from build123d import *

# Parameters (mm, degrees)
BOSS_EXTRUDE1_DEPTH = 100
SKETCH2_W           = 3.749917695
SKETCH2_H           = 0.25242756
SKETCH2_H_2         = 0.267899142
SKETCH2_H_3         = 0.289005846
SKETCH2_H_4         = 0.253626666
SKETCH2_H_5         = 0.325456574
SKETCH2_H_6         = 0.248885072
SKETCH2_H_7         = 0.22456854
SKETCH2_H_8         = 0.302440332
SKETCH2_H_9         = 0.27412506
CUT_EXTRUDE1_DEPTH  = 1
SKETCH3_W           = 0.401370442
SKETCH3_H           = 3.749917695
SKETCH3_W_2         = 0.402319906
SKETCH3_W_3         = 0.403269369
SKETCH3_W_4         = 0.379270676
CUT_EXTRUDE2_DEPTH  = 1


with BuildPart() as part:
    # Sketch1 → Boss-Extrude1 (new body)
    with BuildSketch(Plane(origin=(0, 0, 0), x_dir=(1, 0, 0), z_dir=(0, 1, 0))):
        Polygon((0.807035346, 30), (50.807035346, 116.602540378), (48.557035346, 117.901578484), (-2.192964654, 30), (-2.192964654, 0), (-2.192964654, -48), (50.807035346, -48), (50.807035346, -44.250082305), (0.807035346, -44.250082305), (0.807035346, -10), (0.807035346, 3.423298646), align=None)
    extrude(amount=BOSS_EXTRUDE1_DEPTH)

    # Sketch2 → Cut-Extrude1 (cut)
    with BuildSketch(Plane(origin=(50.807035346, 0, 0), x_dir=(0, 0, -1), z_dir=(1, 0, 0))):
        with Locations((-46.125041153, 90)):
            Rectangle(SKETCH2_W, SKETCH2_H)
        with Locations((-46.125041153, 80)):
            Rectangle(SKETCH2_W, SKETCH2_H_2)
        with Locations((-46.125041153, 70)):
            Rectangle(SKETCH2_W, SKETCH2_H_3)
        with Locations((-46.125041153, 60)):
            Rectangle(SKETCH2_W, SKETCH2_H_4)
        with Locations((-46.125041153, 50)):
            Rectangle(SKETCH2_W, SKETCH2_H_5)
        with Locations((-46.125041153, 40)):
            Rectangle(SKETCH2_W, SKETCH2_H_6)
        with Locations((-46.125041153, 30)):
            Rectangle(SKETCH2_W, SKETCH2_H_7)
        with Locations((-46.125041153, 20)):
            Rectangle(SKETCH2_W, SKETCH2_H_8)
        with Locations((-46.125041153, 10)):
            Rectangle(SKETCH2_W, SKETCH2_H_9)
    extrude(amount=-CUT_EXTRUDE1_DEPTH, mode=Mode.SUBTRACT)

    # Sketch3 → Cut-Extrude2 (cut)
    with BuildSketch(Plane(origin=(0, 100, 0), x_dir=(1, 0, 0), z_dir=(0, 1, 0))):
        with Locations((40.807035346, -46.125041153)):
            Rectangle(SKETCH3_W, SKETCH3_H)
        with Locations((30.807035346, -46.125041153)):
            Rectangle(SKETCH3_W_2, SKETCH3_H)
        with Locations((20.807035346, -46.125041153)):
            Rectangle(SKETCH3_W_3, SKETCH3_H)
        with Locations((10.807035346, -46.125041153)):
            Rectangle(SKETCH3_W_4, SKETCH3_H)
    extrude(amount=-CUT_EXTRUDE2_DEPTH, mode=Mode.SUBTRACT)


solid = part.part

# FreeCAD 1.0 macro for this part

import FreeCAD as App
import Part
import Sketcher
Q = App.Units.Quantity

doc = App.newDocument("Part")
body = doc.addObject("PartDesign::Body", "Body")

sketch1 = doc.addObject("Sketcher::SketchObject", "Sketch")
body.addObject(sketch1)
sketch1.AttachmentSupport = (doc.XZ_Plane, [""])
sketch1.MapMode = "FlatFace"
sketch1.addGeometry(Part.LineSegment(App.Vector(0.8, -30, 0), App.Vector(50.8, -116.6, 0)), False)
sketch1.addGeometry(Part.LineSegment(App.Vector(50.8, -116.6, 0), App.Vector(48.6, -117.9, 0)), False)
sketch1.addGeometry(Part.LineSegment(App.Vector(48.6, -117.9, 0), App.Vector(-2.2, -30, 0)), False)
sketch1.addGeometry(Part.LineSegment(App.Vector(-2.2, -30, 0), App.Vector(-2.2, 48, 0)), False)
sketch1.addGeometry(Part.LineSegment(App.Vector(-2.2, 48, 0), App.Vector(50.8, 48, 0)), False)
sketch1.addGeometry(Part.LineSegment(App.Vector(50.8, 48, 0), App.Vector(50.8, 44.3, 0)), False)
sketch1.addGeometry(Part.LineSegment(App.Vector(50.8, 44.3, 0), App.Vector(0.8, 44.3, 0)), False)
sketch1.addGeometry(Part.LineSegment(App.Vector(0.8, 44.3, 0), App.Vector(0.8, -30, 0)), False)
sketch1.addConstraint(Sketcher.Constraint("Coincident", 0, 2, 1, 1))
sketch1.addConstraint(Sketcher.Constraint("Coincident", 1, 2, 2, 1))
sketch1.addConstraint(Sketcher.Constraint("Coincident", 2, 2, 3, 1))
sketch1.addConstraint(Sketcher.Constraint("Coincident", 3, 2, 4, 1))
sketch1.addConstraint(Sketcher.Constraint("Coincident", 4, 2, 5, 1))
sketch1.addConstraint(Sketcher.Constraint("Coincident", 5, 2, 6, 1))
sketch1.addConstraint(Sketcher.Constraint("Coincident", 6, 2, 7, 1))
sketch1.addConstraint(Sketcher.Constraint("Coincident", 7, 2, 0, 1))
sketch1.addConstraint(Sketcher.Constraint("Vertical", 3))
sketch1.addConstraint(Sketcher.Constraint("Horizontal", 4))
sketch1.addConstraint(Sketcher.Constraint("Vertical", 5))
sketch1.addConstraint(Sketcher.Constraint("Horizontal", 6))
sketch1.addConstraint(Sketcher.Constraint("Vertical", 7))
sketch1.addConstraint(Sketcher.Constraint("Perpendicular", 0, 1))
sketch1.addConstraint(Sketcher.Constraint("Perpendicular", 1, 2))
sketch1.addConstraint(Sketcher.Constraint("Horizontal", 2, 2, 7, 2))
sketch1.addConstraint(Sketcher.Constraint("Vertical", 0, 2, 4, 2))
sketch1.addConstraint(Sketcher.Constraint("DistanceX", 4, 1, 4, 2, Q("53 mm")))
sketch1.addConstraint(Sketcher.Constraint("DistanceX", 6, 2, 6, 1, Q("50 mm")))
sketch1.addConstraint(Sketcher.Constraint("DistanceY", 3, 1, 3, 2, Q("78 mm")))
sketch1.addConstraint(Sketcher.Constraint("Angle", 0, Q("-60 deg")))
sketch1.addConstraint(Sketcher.Constraint("DistanceY", 2, 2, -1, 1, Q("30 mm")))
sketch1.addConstraint(Sketcher.Constraint("DistanceY", 5, 2, 5, 1, Q("3.749918 mm")))
sketch1.addConstraint(Sketcher.Constraint("DistanceX", -1, 1, 0, 2, Q("50.807035 mm")))
pad1 = doc.addObject("PartDesign::Pad", "Pad")
body.addObject(pad1)
pad1.Profile = sketch1
pad1.Length = 100
pad1.Reversed = True

sketch2 = doc.addObject("Sketcher::SketchObject", "Sketch001")
body.addObject(sketch2)
sketch2.AttachmentSupport = (doc.YZ_Plane, [""])
sketch2.MapMode = "FlatFace"
sketch2.AttachmentOffset = App.Placement(App.Vector(0, 0, 50.807035), App.Rotation())
sketch2.addGeometry(Part.LineSegment(App.Vector(90.13, 48, 0), App.Vector(89.87, 48, 0)), False)
sketch2.addGeometry(Part.LineSegment(App.Vector(89.87, 48, 0), App.Vector(89.87, 44.25, 0)), False)
sketch2.addGeometry(Part.LineSegment(App.Vector(89.87, 44.25, 0), App.Vector(90.13, 44.25, 0)), False)
sketch2.addGeometry(Part.LineSegment(App.Vector(90.13, 44.25, 0), App.Vector(90.13, 48, 0)), False)
sketch2.addGeometry(Part.LineSegment(App.Vector(80.13, 48, 0), App.Vector(79.87, 48, 0)), False)
sketch2.addGeometry(Part.LineSegment(App.Vector(79.87, 48, 0), App.Vector(79.87, 44.25, 0)), False)
sketch2.addGeometry(Part.LineSegment(App.Vector(79.87, 44.25, 0), App.Vector(80.13, 44.25, 0)), False)
sketch2.addGeometry(Part.LineSegment(App.Vector(80.13, 44.25, 0), App.Vector(80.13, 48, 0)), False)
sketch2.addGeometry(Part.LineSegment(App.Vector(70.14, 48, 0), App.Vector(69.86, 48, 0)), False)
sketch2.addGeometry(Part.LineSegment(App.Vector(69.86, 48, 0), App.Vector(69.86, 44.25, 0)), False)
sketch2.addGeometry(Part.LineSegment(App.Vector(69.86, 44.25, 0), App.Vector(70.14, 44.25, 0)), False)
sketch2.addGeometry(Part.LineSegment(App.Vector(70.14, 44.25, 0), App.Vector(70.14, 48, 0)), False)
sketch2.addGeometry(Part.LineSegment(App.Vector(60.13, 48, 0), App.Vector(59.87, 48, 0)), False)
sketch2.addGeometry(Part.LineSegment(App.Vector(59.87, 48, 0), App.Vector(59.87, 44.25, 0)), False)
sketch2.addGeometry(Part.LineSegment(App.Vector(59.87, 44.25, 0), App.Vector(60.13, 44.25, 0)), False)
sketch2.addGeometry(Part.LineSegment(App.Vector(60.13, 44.25, 0), App.Vector(60.13, 48, 0)), False)
sketch2.addGeometry(Part.LineSegment(App.Vector(50.16, 48, 0), App.Vector(49.84, 48, 0)), False)
sketch2.addGeometry(Part.LineSegment(App.Vector(49.84, 48, 0), App.Vector(49.84, 44.25, 0)), False)
sketch2.addGeometry(Part.LineSegment(App.Vector(49.84, 44.25, 0), App.Vector(50.16, 44.25, 0)), False)
sketch2.addGeometry(Part.LineSegment(App.Vector(50.16, 44.25, 0), App.Vector(50.16, 48, 0)), False)
sketch2.addGeometry(Part.LineSegment(App.Vector(40.12, 48, 0), App.Vector(39.88, 48, 0)), False)
sketch2.addGeometry(Part.LineSegment(App.Vector(39.88, 48, 0), App.Vector(39.88, 44.25, 0)), False)
sketch2.addGeometry(Part.LineSegment(App.Vector(39.88, 44.25, 0), App.Vector(40.12, 44.25, 0)), False)
sketch2.addGeometry(Part.LineSegment(App.Vector(40.12, 44.25, 0), App.Vector(40.12, 48, 0)), False)
sketch2.addGeometry(Part.LineSegment(App.Vector(30.11, 48, 0), App.Vector(29.89, 48, 0)), False)
sketch2.addGeometry(Part.LineSegment(App.Vector(29.89, 48, 0), App.Vector(29.89, 44.25, 0)), False)
sketch2.addGeometry(Part.LineSegment(App.Vector(29.89, 44.25, 0), App.Vector(30.11, 44.25, 0)), False)
sketch2.addGeometry(Part.LineSegment(App.Vector(30.11, 44.25, 0), App.Vector(30.11, 48, 0)), False)
sketch2.addGeometry(Part.LineSegment(App.Vector(20.15, 48, 0), App.Vector(19.85, 48, 0)), False)
sketch2.addGeometry(Part.LineSegment(App.Vector(19.85, 48, 0), App.Vector(19.85, 44.25, 0)), False)
sketch2.addGeometry(Part.LineSegment(App.Vector(19.85, 44.25, 0), App.Vector(20.15, 44.25, 0)), False)
sketch2.addGeometry(Part.LineSegment(App.Vector(20.15, 44.25, 0), App.Vector(20.15, 48, 0)), False)
sketch2.addGeometry(Part.LineSegment(App.Vector(10.14, 48, 0), App.Vector(9.86, 48, 0)), False)
sketch2.addGeometry(Part.LineSegment(App.Vector(9.86, 48, 0), App.Vector(9.86, 44.25, 0)), False)
sketch2.addGeometry(Part.LineSegment(App.Vector(9.86, 44.25, 0), App.Vector(10.14, 44.25, 0)), False)
sketch2.addGeometry(Part.LineSegment(App.Vector(10.14, 44.25, 0), App.Vector(10.14, 48, 0)), False)
sketch2.addConstraint(Sketcher.Constraint("Coincident", 0, 2, 1, 1))
sketch2.addConstraint(Sketcher.Constraint("Coincident", 1, 2, 2, 1))
sketch2.addConstraint(Sketcher.Constraint("Coincident", 2, 2, 3, 1))
sketch2.addConstraint(Sketcher.Constraint("Coincident", 3, 2, 0, 1))
sketch2.addConstraint(Sketcher.Constraint("Coincident", 4, 2, 5, 1))
sketch2.addConstraint(Sketcher.Constraint("Coincident", 5, 2, 6, 1))
sketch2.addConstraint(Sketcher.Constraint("Coincident", 6, 2, 7, 1))
sketch2.addConstraint(Sketcher.Constraint("Coincident", 7, 2, 4, 1))
sketch2.addConstraint(Sketcher.Constraint("Coincident", 8, 2, 9, 1))
sketch2.addConstraint(Sketcher.Constraint("Coincident", 9, 2, 10, 1))
sketch2.addConstraint(Sketcher.Constraint("Coincident", 10, 2, 11, 1))
sketch2.addConstraint(Sketcher.Constraint("Coincident", 11, 2, 8, 1))
sketch2.addConstraint(Sketcher.Constraint("Coincident", 12, 2, 13, 1))
sketch2.addConstraint(Sketcher.Constraint("Coincident", 13, 2, 14, 1))
sketch2.addConstraint(Sketcher.Constraint("Coincident", 14, 2, 15, 1))
sketch2.addConstraint(Sketcher.Constraint("Coincident", 15, 2, 12, 1))
sketch2.addConstraint(Sketcher.Constraint("Coincident", 16, 2, 17, 1))
sketch2.addConstraint(Sketcher.Constraint("Coincident", 17, 2, 18, 1))
sketch2.addConstraint(Sketcher.Constraint("Coincident", 18, 2, 19, 1))
sketch2.addConstraint(Sketcher.Constraint("Coincident", 19, 2, 16, 1))
sketch2.addConstraint(Sketcher.Constraint("Coincident", 20, 2, 21, 1))
sketch2.addConstraint(Sketcher.Constraint("Coincident", 21, 2, 22, 1))
sketch2.addConstraint(Sketcher.Constraint("Coincident", 22, 2, 23, 1))
sketch2.addConstraint(Sketcher.Constraint("Coincident", 23, 2, 20, 1))
sketch2.addConstraint(Sketcher.Constraint("Coincident", 24, 2, 25, 1))
sketch2.addConstraint(Sketcher.Constraint("Coincident", 25, 2, 26, 1))
sketch2.addConstraint(Sketcher.Constraint("Coincident", 26, 2, 27, 1))
sketch2.addConstraint(Sketcher.Constraint("Coincident", 27, 2, 24, 1))
sketch2.addConstraint(Sketcher.Constraint("Coincident", 28, 2, 29, 1))
sketch2.addConstraint(Sketcher.Constraint("Coincident", 29, 2, 30, 1))
sketch2.addConstraint(Sketcher.Constraint("Coincident", 30, 2, 31, 1))
sketch2.addConstraint(Sketcher.Constraint("Coincident", 31, 2, 28, 1))
sketch2.addConstraint(Sketcher.Constraint("Coincident", 32, 2, 33, 1))
sketch2.addConstraint(Sketcher.Constraint("Coincident", 33, 2, 34, 1))
sketch2.addConstraint(Sketcher.Constraint("Coincident", 34, 2, 35, 1))
sketch2.addConstraint(Sketcher.Constraint("Coincident", 35, 2, 32, 1))
sketch2.addConstraint(Sketcher.Constraint("Horizontal", 0))
sketch2.addConstraint(Sketcher.Constraint("Vertical", 1))
sketch2.addConstraint(Sketcher.Constraint("Horizontal", 2))
sketch2.addConstraint(Sketcher.Constraint("Vertical", 3))
sketch2.addConstraint(Sketcher.Constraint("Horizontal", 4))
sketch2.addConstraint(Sketcher.Constraint("Vertical", 5))
sketch2.addConstraint(Sketcher.Constraint("Horizontal", 6))
sketch2.addConstraint(Sketcher.Constraint("Vertical", 7))
sketch2.addConstraint(Sketcher.Constraint("Horizontal", 8))
sketch2.addConstraint(Sketcher.Constraint("Vertical", 9))
sketch2.addConstraint(Sketcher.Constraint("Horizontal", 10))
sketch2.addConstraint(Sketcher.Constraint("Vertical", 11))
sketch2.addConstraint(Sketcher.Constraint("Horizontal", 12))
sketch2.addConstraint(Sketcher.Constraint("Vertical", 13))
sketch2.addConstraint(Sketcher.Constraint("Horizontal", 14))
sketch2.addConstraint(Sketcher.Constraint("Vertical", 15))
sketch2.addConstraint(Sketcher.Constraint("Horizontal", 16))
sketch2.addConstraint(Sketcher.Constraint("Vertical", 17))
sketch2.addConstraint(Sketcher.Constraint("Horizontal", 18))
sketch2.addConstraint(Sketcher.Constraint("Vertical", 19))
sketch2.addConstraint(Sketcher.Constraint("Horizontal", 20))
sketch2.addConstraint(Sketcher.Constraint("Vertical", 21))
sketch2.addConstraint(Sketcher.Constraint("Horizontal", 22))
sketch2.addConstraint(Sketcher.Constraint("Vertical", 23))
sketch2.addConstraint(Sketcher.Constraint("Horizontal", 24))
sketch2.addConstraint(Sketcher.Constraint("Vertical", 25))
sketch2.addConstraint(Sketcher.Constraint("Horizontal", 26))
sketch2.addConstraint(Sketcher.Constraint("Vertical", 27))
sketch2.addConstraint(Sketcher.Constraint("Horizontal", 28))
sketch2.addConstraint(Sketcher.Constraint("Vertical", 29))
sketch2.addConstraint(Sketcher.Constraint("Horizontal", 30))
sketch2.addConstraint(Sketcher.Constraint("Vertical", 31))
sketch2.addConstraint(Sketcher.Constraint("Horizontal", 32))
sketch2.addConstraint(Sketcher.Constraint("Vertical", 33))
sketch2.addConstraint(Sketcher.Constraint("Horizontal", 34))
sketch2.addConstraint(Sketcher.Constraint("Vertical", 35))
sketch2.addConstraint(Sketcher.Constraint("Horizontal", 3, 2, 4, 2))
sketch2.addConstraint(Sketcher.Constraint("Horizontal", 2, 2, 5, 2))
sketch2.addConstraint(Sketcher.Constraint("Horizontal", 7, 2, 8, 2))
sketch2.addConstraint(Sketcher.Constraint("Horizontal", 6, 2, 9, 2))
sketch2.addConstraint(Sketcher.Constraint("Horizontal", 11, 2, 12, 2))
sketch2.addConstraint(Sketcher.Constraint("Horizontal", 10, 2, 13, 2))
sketch2.addConstraint(Sketcher.Constraint("Horizontal", 15, 2, 16, 2))
sketch2.addConstraint(Sketcher.Constraint("Horizontal", 14, 2, 17, 2))
sketch2.addConstraint(Sketcher.Constraint("Horizontal", 19, 2, 20, 2))
sketch2.addConstraint(Sketcher.Constraint("Horizontal", 18, 2, 21, 2))
sketch2.addConstraint(Sketcher.Constraint("Horizontal", 23, 2, 24, 2))
sketch2.addConstraint(Sketcher.Constraint("Horizontal", 22, 2, 25, 2))
sketch2.addConstraint(Sketcher.Constraint("Horizontal", 27, 2, 28, 2))
sketch2.addConstraint(Sketcher.Constraint("Horizontal", 26, 2, 29, 2))
sketch2.addConstraint(Sketcher.Constraint("Horizontal", 31, 2, 32, 2))
sketch2.addConstraint(Sketcher.Constraint("Horizontal", 30, 2, 33, 2))
sketch2.addConstraint(Sketcher.Constraint("DistanceY", -1, 1, 0, 2, Q("48 mm")))
sketch2.addConstraint(Sketcher.Constraint("DistanceX", 4, 2, 4, 1, Q("0.267899 mm")))
sketch2.addConstraint(Sketcher.Constraint("DistanceX", 24, 2, 24, 1, Q("0.224569 mm")))
sketch2.addConstraint(Sketcher.Constraint("DistanceX", 28, 2, 28, 1, Q("0.30244 mm")))
sketch2.addConstraint(Sketcher.Constraint("DistanceX", 0, 2, 0, 1, Q("0.252428 mm")))
sketch2.addConstraint(Sketcher.Constraint("DistanceX", 8, 2, 8, 1, Q("0.289006 mm")))
sketch2.addConstraint(Sketcher.Constraint("DistanceX", 12, 2, 12, 1, Q("0.253627 mm")))
sketch2.addConstraint(Sketcher.Constraint("DistanceX", 16, 2, 16, 1, Q("0.325457 mm")))
sketch2.addConstraint(Sketcher.Constraint("DistanceX", 20, 2, 20, 1, Q("0.248885 mm")))
sketch2.addConstraint(Sketcher.Constraint("DistanceX", 32, 2, 32, 1, Q("0.274125 mm")))
sketch2.addConstraint(Sketcher.Constraint("DistanceY", 1, 2, 1, 1, Q("3.749918 mm")))
sketch2.addConstraint(Sketcher.Constraint("DistanceX", -1, 1, 4, 2, Q("79.86605 mm")))
sketch2.addConstraint(Sketcher.Constraint("DistanceX", -1, 1, 16, 2, Q("49.837272 mm")))
sketch2.addConstraint(Sketcher.Constraint("DistanceX", -1, 1, 28, 2, Q("19.84878 mm")))
sketch2.addConstraint(Sketcher.Constraint("DistanceX", 8, 2, 0, 2, Q("20.018289 mm")))
sketch2.addConstraint(Sketcher.Constraint("DistanceX", 12, 2, 8, 2, Q("9.98231 mm")))
sketch2.addConstraint(Sketcher.Constraint("DistanceX", 16, 2, 15, 2, Q("10.289542 mm")))
sketch2.addConstraint(Sketcher.Constraint("DistanceX", 20, 2, 19, 2, Q("10.287171 mm")))
sketch2.addConstraint(Sketcher.Constraint("DistanceX", 24, 2, 20, 2, Q("9.987842 mm")))
sketch2.addConstraint(Sketcher.Constraint("DistanceX", 32, 2, 24, 2, Q("20.024778 mm")))
pocket1 = doc.addObject("PartDesign::Pocket", "Pocket")
body.addObject(pocket1)
pocket1.Profile = sketch2
pocket1.Length = 1

sketch3 = doc.addObject("Sketcher::SketchObject", "Sketch002")
body.addObject(sketch3)
sketch3.AttachmentSupport = (doc.XZ_Plane, [""])
sketch3.MapMode = "FlatFace"
sketch3.AttachmentOffset = App.Placement(App.Vector(0, 0, -100), App.Rotation())
sketch3.addGeometry(Part.LineSegment(App.Vector(40.61, 44.25, 0), App.Vector(40.61, 48, 0)), False)
sketch3.addGeometry(Part.LineSegment(App.Vector(40.61, 48, 0), App.Vector(41.01, 48, 0)), False)
sketch3.addGeometry(Part.LineSegment(App.Vector(41.01, 48, 0), App.Vector(41.01, 44.25, 0)), False)
sketch3.addGeometry(Part.LineSegment(App.Vector(41.01, 44.25, 0), App.Vector(40.61, 44.25, 0)), False)
sketch3.addGeometry(Part.LineSegment(App.Vector(30.61, 44.25, 0), App.Vector(30.61, 48, 0)), False)
sketch3.addGeometry(Part.LineSegment(App.Vector(30.61, 48, 0), App.Vector(31.01, 48, 0)), False)
sketch3.addGeometry(Part.LineSegment(App.Vector(31.01, 48, 0), App.Vector(31.01, 44.25, 0)), False)
sketch3.addGeometry(Part.LineSegment(App.Vector(31.01, 44.25, 0), App.Vector(30.61, 44.25, 0)), False)
sketch3.addGeometry(Part.LineSegment(App.Vector(20.61, 44.25, 0), App.Vector(20.61, 48, 0)), False)
sketch3.addGeometry(Part.LineSegment(App.Vector(20.61, 48, 0), App.Vector(21.01, 48, 0)), False)
sketch3.addGeometry(Part.LineSegment(App.Vector(21.01, 48, 0), App.Vector(21.01, 44.25, 0)), False)
sketch3.addGeometry(Part.LineSegment(App.Vector(21.01, 44.25, 0), App.Vector(20.61, 44.25, 0)), False)
sketch3.addGeometry(Part.LineSegment(App.Vector(10.62, 44.25, 0), App.Vector(10.62, 48, 0)), False)
sketch3.addGeometry(Part.LineSegment(App.Vector(10.62, 48, 0), App.Vector(11, 48, 0)), False)
sketch3.addGeometry(Part.LineSegment(App.Vector(11, 48, 0), App.Vector(11, 44.25, 0)), False)
sketch3.addGeometry(Part.LineSegment(App.Vector(11, 44.25, 0), App.Vector(10.62, 44.25, 0)), False)
sketch3.addConstraint(Sketcher.Constraint("Coincident", 0, 2, 1, 1))
sketch3.addConstraint(Sketcher.Constraint("Coincident", 1, 2, 2, 1))
sketch3.addConstraint(Sketcher.Constraint("Coincident", 2, 2, 3, 1))
sketch3.addConstraint(Sketcher.Constraint("Coincident", 3, 2, 0, 1))
sketch3.addConstraint(Sketcher.Constraint("Coincident", 4, 2, 5, 1))
sketch3.addConstraint(Sketcher.Constraint("Coincident", 5, 2, 6, 1))
sketch3.addConstraint(Sketcher.Constraint("Coincident", 6, 2, 7, 1))
sketch3.addConstraint(Sketcher.Constraint("Coincident", 7, 2, 4, 1))
sketch3.addConstraint(Sketcher.Constraint("Coincident", 8, 2, 9, 1))
sketch3.addConstraint(Sketcher.Constraint("Coincident", 9, 2, 10, 1))
sketch3.addConstraint(Sketcher.Constraint("Coincident", 10, 2, 11, 1))
sketch3.addConstraint(Sketcher.Constraint("Coincident", 11, 2, 8, 1))
sketch3.addConstraint(Sketcher.Constraint("Coincident", 12, 2, 13, 1))
sketch3.addConstraint(Sketcher.Constraint("Coincident", 13, 2, 14, 1))
sketch3.addConstraint(Sketcher.Constraint("Coincident", 14, 2, 15, 1))
sketch3.addConstraint(Sketcher.Constraint("Coincident", 15, 2, 12, 1))
sketch3.addConstraint(Sketcher.Constraint("Vertical", 0))
sketch3.addConstraint(Sketcher.Constraint("Horizontal", 1))
sketch3.addConstraint(Sketcher.Constraint("Vertical", 2))
sketch3.addConstraint(Sketcher.Constraint("Horizontal", 3))
sketch3.addConstraint(Sketcher.Constraint("Vertical", 4))
sketch3.addConstraint(Sketcher.Constraint("Horizontal", 5))
sketch3.addConstraint(Sketcher.Constraint("Vertical", 6))
sketch3.addConstraint(Sketcher.Constraint("Horizontal", 7))
sketch3.addConstraint(Sketcher.Constraint("Vertical", 8))
sketch3.addConstraint(Sketcher.Constraint("Horizontal", 9))
sketch3.addConstraint(Sketcher.Constraint("Vertical", 10))
sketch3.addConstraint(Sketcher.Constraint("Horizontal", 11))
sketch3.addConstraint(Sketcher.Constraint("Vertical", 12))
sketch3.addConstraint(Sketcher.Constraint("Horizontal", 13))
sketch3.addConstraint(Sketcher.Constraint("Vertical", 14))
sketch3.addConstraint(Sketcher.Constraint("Horizontal", 15))
sketch3.addConstraint(Sketcher.Constraint("Horizontal", 1, 2, 4, 2))
sketch3.addConstraint(Sketcher.Constraint("Horizontal", 3, 2, 6, 2))
sketch3.addConstraint(Sketcher.Constraint("Horizontal", 5, 2, 8, 2))
sketch3.addConstraint(Sketcher.Constraint("Horizontal", 7, 2, 10, 2))
sketch3.addConstraint(Sketcher.Constraint("Horizontal", 9, 2, 12, 2))
sketch3.addConstraint(Sketcher.Constraint("Horizontal", 11, 2, 14, 2))
sketch3.addConstraint(Sketcher.Constraint("DistanceY", -1, 1, 0, 2, Q("48 mm")))
sketch3.addConstraint(Sketcher.Constraint("DistanceX", 12, 2, 8, 2, Q("9.988001 mm")))
sketch3.addConstraint(Sketcher.Constraint("DistanceX", 13, 2, 9, 2, Q("10.011999 mm")))
sketch3.addConstraint(Sketcher.Constraint("DistanceX", 1, 1, 1, 2, Q("0.40137 mm")))
sketch3.addConstraint(Sketcher.Constraint("DistanceX", 5, 1, 5, 2, Q("0.40232 mm")))
sketch3.addConstraint(Sketcher.Constraint("DistanceX", 9, 1, 9, 2, Q("0.403269 mm")))
sketch3.addConstraint(Sketcher.Constraint("DistanceX", -1, 1, 8, 2, Q("20.605401 mm")))
sketch3.addConstraint(Sketcher.Constraint("DistanceY", 0, 1, 0, 2, Q("3.749918 mm")))
sketch3.addConstraint(Sketcher.Constraint("DistanceX", -1, 1, 0, 2, Q("40.60635 mm")))
sketch3.addConstraint(Sketcher.Constraint("DistanceX", -1, 1, 4, 2, Q("30.605875 mm")))
pocket2 = doc.addObject("PartDesign::Pocket", "Pocket001")
body.addObject(pocket2)
pocket2.Profile = sketch3
pocket2.Length = 1
pocket2.Reversed = True

doc.recompute()
